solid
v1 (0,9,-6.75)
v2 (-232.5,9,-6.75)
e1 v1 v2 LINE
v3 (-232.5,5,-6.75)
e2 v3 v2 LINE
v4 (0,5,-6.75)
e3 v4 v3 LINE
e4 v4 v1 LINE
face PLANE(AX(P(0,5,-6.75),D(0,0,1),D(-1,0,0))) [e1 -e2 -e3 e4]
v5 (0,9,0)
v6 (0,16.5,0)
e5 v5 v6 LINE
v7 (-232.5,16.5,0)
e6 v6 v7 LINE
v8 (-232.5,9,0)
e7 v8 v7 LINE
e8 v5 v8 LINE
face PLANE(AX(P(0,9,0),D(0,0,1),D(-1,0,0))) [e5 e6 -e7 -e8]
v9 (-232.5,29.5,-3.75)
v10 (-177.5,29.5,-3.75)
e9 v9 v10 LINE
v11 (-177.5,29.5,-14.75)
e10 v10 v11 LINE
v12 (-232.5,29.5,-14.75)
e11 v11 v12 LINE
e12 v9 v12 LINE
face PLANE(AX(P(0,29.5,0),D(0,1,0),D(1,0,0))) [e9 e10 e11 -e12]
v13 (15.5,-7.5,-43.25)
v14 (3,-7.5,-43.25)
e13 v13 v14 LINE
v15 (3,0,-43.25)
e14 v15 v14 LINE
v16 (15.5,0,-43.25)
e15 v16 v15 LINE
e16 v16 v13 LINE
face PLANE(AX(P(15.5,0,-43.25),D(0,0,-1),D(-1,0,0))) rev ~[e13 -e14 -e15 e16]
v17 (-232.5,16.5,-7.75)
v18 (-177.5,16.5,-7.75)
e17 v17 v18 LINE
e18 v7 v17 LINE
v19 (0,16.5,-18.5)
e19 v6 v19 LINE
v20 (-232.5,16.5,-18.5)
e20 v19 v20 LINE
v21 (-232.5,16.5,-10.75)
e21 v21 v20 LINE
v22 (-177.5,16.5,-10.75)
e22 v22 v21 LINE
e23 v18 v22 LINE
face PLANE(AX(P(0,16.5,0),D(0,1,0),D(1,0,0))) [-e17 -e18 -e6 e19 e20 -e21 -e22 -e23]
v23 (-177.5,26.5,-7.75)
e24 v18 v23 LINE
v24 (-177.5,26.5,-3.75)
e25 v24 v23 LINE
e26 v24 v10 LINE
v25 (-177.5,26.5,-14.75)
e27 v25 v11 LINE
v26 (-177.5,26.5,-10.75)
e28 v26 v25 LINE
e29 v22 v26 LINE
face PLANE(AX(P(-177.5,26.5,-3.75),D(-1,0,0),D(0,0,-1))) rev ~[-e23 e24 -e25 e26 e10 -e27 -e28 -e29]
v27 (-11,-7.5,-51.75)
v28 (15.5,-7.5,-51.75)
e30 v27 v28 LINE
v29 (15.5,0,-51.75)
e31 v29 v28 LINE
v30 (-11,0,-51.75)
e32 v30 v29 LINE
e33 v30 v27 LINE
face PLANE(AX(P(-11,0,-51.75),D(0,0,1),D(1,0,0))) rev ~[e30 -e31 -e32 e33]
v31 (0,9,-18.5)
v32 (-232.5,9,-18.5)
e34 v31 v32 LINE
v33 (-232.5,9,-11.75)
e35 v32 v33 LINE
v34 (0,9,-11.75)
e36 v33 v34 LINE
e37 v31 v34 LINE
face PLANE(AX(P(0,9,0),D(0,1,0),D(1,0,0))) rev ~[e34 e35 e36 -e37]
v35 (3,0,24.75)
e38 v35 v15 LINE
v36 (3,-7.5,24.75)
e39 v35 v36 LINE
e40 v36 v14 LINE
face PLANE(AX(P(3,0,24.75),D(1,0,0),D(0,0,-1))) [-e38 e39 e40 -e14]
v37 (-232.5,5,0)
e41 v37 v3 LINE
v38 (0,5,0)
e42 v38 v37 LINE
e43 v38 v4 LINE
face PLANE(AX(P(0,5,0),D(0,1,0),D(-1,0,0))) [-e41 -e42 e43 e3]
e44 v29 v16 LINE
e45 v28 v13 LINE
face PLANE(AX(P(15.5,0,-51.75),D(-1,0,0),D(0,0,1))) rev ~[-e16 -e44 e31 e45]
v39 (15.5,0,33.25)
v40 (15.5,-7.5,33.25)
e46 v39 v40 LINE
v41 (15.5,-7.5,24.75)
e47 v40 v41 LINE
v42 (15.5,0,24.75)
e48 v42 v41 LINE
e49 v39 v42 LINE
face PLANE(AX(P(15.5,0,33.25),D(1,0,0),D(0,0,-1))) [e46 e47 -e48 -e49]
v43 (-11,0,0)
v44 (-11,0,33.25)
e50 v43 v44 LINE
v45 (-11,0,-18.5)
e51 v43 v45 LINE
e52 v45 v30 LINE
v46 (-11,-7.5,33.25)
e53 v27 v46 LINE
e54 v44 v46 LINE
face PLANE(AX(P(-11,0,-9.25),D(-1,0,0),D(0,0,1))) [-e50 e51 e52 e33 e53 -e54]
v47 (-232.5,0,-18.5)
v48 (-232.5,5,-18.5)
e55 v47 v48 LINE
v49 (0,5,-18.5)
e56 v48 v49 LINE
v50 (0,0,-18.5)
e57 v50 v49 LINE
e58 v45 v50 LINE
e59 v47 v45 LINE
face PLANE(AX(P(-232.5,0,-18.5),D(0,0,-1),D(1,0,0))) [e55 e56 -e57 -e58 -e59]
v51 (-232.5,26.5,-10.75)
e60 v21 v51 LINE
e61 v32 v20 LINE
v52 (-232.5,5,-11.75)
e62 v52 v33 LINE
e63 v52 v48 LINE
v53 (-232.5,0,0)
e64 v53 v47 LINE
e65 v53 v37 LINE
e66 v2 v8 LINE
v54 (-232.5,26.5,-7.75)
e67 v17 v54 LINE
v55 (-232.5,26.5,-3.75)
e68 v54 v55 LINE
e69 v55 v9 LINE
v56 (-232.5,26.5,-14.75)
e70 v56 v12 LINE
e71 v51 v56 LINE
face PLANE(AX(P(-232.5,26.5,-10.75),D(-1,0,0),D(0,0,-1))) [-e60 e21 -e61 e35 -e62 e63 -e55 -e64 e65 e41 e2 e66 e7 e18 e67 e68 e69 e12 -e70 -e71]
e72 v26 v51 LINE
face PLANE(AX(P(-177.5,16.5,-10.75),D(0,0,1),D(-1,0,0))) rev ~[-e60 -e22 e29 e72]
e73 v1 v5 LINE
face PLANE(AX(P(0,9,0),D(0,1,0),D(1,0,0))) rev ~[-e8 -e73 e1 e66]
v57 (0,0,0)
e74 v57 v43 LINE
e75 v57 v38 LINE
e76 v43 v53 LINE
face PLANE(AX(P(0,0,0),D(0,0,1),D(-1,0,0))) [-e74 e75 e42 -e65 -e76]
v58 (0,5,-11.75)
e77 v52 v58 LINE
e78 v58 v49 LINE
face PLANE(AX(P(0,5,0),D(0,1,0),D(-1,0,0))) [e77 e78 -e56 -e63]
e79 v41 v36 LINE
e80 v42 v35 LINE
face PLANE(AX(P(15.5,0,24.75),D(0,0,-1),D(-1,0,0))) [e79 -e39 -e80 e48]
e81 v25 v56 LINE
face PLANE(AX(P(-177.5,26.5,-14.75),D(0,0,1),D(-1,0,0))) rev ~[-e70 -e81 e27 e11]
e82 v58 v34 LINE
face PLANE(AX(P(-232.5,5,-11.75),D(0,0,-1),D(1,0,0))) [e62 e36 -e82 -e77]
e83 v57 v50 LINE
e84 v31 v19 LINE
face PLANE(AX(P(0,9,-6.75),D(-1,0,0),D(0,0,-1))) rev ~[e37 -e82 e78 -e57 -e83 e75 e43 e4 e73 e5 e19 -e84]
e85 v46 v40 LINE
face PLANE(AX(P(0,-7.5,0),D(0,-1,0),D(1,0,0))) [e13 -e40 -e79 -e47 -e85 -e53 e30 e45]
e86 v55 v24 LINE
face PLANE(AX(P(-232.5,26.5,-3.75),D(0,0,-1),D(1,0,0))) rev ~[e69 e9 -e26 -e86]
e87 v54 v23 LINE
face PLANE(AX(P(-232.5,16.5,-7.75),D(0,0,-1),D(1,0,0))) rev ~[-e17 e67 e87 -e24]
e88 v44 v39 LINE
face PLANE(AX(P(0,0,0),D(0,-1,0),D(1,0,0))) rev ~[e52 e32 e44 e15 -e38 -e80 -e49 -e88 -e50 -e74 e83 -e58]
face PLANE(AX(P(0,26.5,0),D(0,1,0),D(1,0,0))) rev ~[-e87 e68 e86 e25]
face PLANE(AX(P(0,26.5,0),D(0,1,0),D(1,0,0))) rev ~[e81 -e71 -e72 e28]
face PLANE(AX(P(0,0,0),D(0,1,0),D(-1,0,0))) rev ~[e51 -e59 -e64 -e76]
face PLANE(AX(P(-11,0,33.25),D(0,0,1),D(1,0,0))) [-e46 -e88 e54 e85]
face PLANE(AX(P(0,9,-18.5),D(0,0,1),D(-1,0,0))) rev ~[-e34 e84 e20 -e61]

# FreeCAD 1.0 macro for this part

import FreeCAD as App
import Part
import Sketcher

V = App.Vector


def add_polygon(sketch, points):
    """Adds a closed chain of lines whose ends are joined by coincident constraints."""
    first, n = sketch.GeometryCount, len(points)
    for a, b in zip(points, points[1:] + points[:1]):
        sketch.addGeometry(Part.LineSegment(App.Vector(*a, 0), App.Vector(*b, 0)), False)
    for i in range(n):
        sketch.addConstraint(Sketcher.Constraint("Coincident", first + i, 2, first + (i + 1) % n, 1))

doc = App.newDocument("Part")
body = doc.addObject("PartDesign::Body", "Body")

# Sketch on XZ plane
sketch1 = body.newObject("Sketcher::SketchObject", "Sketch")
sketch1.AttachmentSupport = (doc.getObject("XZ_Plane"), [""])
sketch1.MapMode = "FlatFace"
add_polygon(sketch1, [(-232, 0), (0, 0), (0, -18), (-232, -18)])  # lines 0-3
sketch1.addConstraint([
    Sketcher.Constraint("Horizontal", 0),
    Sketcher.Constraint("Vertical", 1),
    Sketcher.Constraint("Horizontal", 2),
    Sketcher.Constraint("Vertical", 3),
    Sketcher.Constraint("Coincident", 0, 2, -1, 1),
    Sketcher.Constraint("DistanceX", 0, 1, 0, 2, 232.5),
    Sketcher.Constraint("DistanceY", 1, 2, 1, 1, 18.5),
])
pad1 = body.newObject("PartDesign::Pad", "Pad")
pad1.Profile = sketch1
pad1.Length = 5
pad1.Reversed = True

# Sketch on XZ plane
sketch2 = body.newObject("Sketcher::SketchObject", "Sketch001")
sketch2.AttachmentSupport = (doc.getObject("XZ_Plane"), [""])
sketch2.MapMode = "FlatFace"
sketch2.AttachmentOffset = App.Placement(V(0, 0, -5), App.Rotation())
add_polygon(sketch2, [(-232, -7), (0, -7), (0, -12), (-232, -12)])  # lines 0-3
sketch2.addConstraint([
    Sketcher.Constraint("Horizontal", 0),
    Sketcher.Constraint("Vertical", 1),
    Sketcher.Constraint("Horizontal", 2),
    Sketcher.Constraint("Vertical", 3),
    Sketcher.Constraint("PointOnObject", 0, 2, -2),
    Sketcher.Constraint("DistanceY", 1, 2, 1, 1, 5.0),
    Sketcher.Constraint("DistanceX", 0, 1, 0, 2, 232.5),
    Sketcher.Constraint("DistanceY", 0, 2, -1, 1, 6.75),
])
pad2 = body.newObject("PartDesign::Pad", "Pad001")
pad2.Profile = sketch2
pad2.Length = 4
pad2.Reversed = True

# Sketch on XZ plane
sketch3 = body.newObject("Sketcher::SketchObject", "Sketch002")
sketch3.AttachmentSupport = (doc.getObject("XZ_Plane"), [""])
sketch3.MapMode = "FlatFace"
sketch3.AttachmentOffset = App.Placement(V(0, 0, -9), App.Rotation())
add_polygon(sketch3, [(-232, 0), (0, 0), (0, -18), (-232, -18)])  # lines 0-3
sketch3.addConstraint([
    Sketcher.Constraint("Horizontal", 0),
    Sketcher.Constraint("Vertical", 1),
    Sketcher.Constraint("Horizontal", 2),
    Sketcher.Constraint("Vertical", 3),
    Sketcher.Constraint("Coincident", 0, 2, -1, 1),
    Sketcher.Constraint("DistanceX", 0, 1, 0, 2, 232.5),
    Sketcher.Constraint("DistanceY", 1, 2, 1, 1, 18.5),
])
pad3 = body.newObject("PartDesign::Pad", "Pad002")
pad3.Profile = sketch3
pad3.Length = 7.5
pad3.Reversed = True

# Sketch on XZ plane
sketch4 = body.newObject("Sketcher::SketchObject", "Sketch003")
sketch4.AttachmentSupport = (doc.getObject("XZ_Plane"), [""])
sketch4.MapMode = "FlatFace"
add_polygon(sketch4, [(-11, 33), (-11, -52), (16, -52), (16, -43), (3, -43), (3, 25), (16, 25), (16, 33)])  # lines 0-7
sketch4.addConstraint([
    Sketcher.Constraint("Vertical", 0),
    Sketcher.Constraint("Horizontal", 1),
    Sketcher.Constraint("Vertical", 2),
    Sketcher.Constraint("Horizontal", 3),
    Sketcher.Constraint("Vertical", 4),
    Sketcher.Constraint("Horizontal", 5),
    Sketcher.Constraint("Vertical", 6),
    Sketcher.Constraint("Horizontal", 7),
    Sketcher.Constraint("Vertical", 2, 2, 5, 2),
    Sketcher.Constraint("Equal", 2, 6),
    Sketcher.Constraint("DistanceX", 1, 1, 1, 2, 26.5),
    Sketcher.Constraint("DistanceY", 2, 1, 2, 2, 8.5),
    Sketcher.Constraint("DistanceY", 0, 2, 0, 1, 85.0),
    Sketcher.Constraint("DistanceX", 3, 2, 3, 1, 12.5),
    Sketcher.Constraint("DistanceX", 0, 2, -1, 1, 11.0),
    Sketcher.Constraint("DistanceY", 0, 2, -1, 1, 51.75),
])
pad4 = body.newObject("PartDesign::Pad", "Pad003")
pad4.Profile = sketch4
pad4.Length = 7.5

# Sketch on XZ plane
sketch5 = body.newObject("Sketcher::SketchObject", "Sketch004")
sketch5.AttachmentSupport = (doc.getObject("XZ_Plane"), [""])
sketch5.MapMode = "FlatFace"
sketch5.AttachmentOffset = App.Placement(V(0, 0, -16.5), App.Rotation())
add_polygon(sketch5, [(-177.5, -10.8), (-232.5, -10.8), (-232.5, -7.8), (-177.5, -7.8)])  # lines 0-3
sketch5.addConstraint([
    Sketcher.Constraint("Horizontal", 0),
    Sketcher.Constraint("Vertical", 1),
    Sketcher.Constraint("Horizontal", 2),
    Sketcher.Constraint("Vertical", 3),
    Sketcher.Constraint("DistanceX", 0, 2, 0, 1, 55.0),
    Sketcher.Constraint("DistanceY", 1, 1, 1, 2, 3.0),
    Sketcher.Constraint("DistanceX", 0, 2, -1, 1, 232.5),
    Sketcher.Constraint("DistanceY", 0, 2, -1, 1, 10.75),
])
pad5 = body.newObject("PartDesign::Pad", "Pad004")
pad5.Profile = sketch5
pad5.Length = 10
pad5.Reversed = True

# Sketch on XZ plane
sketch6 = body.newObject("Sketcher::SketchObject", "Sketch005")
sketch6.AttachmentSupport = (doc.getObject("XZ_Plane"), [""])
sketch6.MapMode = "FlatFace"
sketch6.AttachmentOffset = App.Placement(V(0, 0, -26.5), App.Rotation())
add_polygon(sketch6, [(-232, -15), (-232, -4), (-178, -4), (-178, -15)])  # lines 0-3
sketch6.addConstraint([
    Sketcher.Constraint("Vertical", 0),
    Sketcher.Constraint("Horizontal", 1),
    Sketcher.Constraint("Vertical", 2),
    Sketcher.Constraint("Horizontal", 3),
    Sketcher.Constraint("DistanceX", 1, 1, 1, 2, 55.0),
    Sketcher.Constraint("DistanceY", 0, 1, 0, 2, 11.0),
    Sketcher.Constraint("DistanceX", 0, 2, -1, 1, 232.5),
    Sketcher.Constraint("DistanceY", 0, 2, -1, 1, 3.75),
])
pad6 = body.newObject("PartDesign::Pad", "Pad005")
pad6.Profile = sketch6
pad6.Length = 3
pad6.Reversed = True

doc.recompute()
